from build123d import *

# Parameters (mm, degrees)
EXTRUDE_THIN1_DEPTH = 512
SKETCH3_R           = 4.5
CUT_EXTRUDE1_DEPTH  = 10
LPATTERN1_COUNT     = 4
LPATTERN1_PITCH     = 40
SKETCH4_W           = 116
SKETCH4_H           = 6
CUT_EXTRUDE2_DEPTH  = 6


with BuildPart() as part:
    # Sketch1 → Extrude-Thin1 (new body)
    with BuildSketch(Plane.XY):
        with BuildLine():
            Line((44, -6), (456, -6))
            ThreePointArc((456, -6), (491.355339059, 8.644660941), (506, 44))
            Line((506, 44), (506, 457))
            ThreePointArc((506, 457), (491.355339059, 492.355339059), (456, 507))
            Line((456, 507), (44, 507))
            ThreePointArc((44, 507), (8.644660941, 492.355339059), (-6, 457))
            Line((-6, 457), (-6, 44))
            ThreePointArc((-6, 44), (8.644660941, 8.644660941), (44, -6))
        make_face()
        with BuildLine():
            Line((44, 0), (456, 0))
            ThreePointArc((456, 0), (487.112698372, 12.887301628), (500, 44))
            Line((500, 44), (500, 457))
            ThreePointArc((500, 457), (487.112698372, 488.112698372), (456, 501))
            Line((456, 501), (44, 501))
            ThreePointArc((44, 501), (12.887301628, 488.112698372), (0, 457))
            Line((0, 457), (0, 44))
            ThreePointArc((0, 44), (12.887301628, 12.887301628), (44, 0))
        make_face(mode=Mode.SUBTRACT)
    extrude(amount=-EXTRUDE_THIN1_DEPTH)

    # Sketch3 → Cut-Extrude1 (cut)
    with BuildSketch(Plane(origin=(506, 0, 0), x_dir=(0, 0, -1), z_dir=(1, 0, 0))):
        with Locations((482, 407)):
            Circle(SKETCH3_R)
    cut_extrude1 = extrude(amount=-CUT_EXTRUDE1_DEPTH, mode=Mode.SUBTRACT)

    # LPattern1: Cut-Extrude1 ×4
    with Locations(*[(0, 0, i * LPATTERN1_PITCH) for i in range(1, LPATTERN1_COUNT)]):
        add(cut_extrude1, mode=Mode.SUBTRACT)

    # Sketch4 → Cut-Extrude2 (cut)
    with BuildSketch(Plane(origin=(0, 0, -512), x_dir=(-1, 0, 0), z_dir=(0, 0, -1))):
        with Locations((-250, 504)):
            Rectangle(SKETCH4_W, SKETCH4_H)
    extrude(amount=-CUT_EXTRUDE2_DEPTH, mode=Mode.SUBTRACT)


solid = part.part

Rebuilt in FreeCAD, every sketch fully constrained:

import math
import FreeCAD as App
import Part
import Sketcher

doc = App.newDocument("Part")
body = doc.addObject("PartDesign::Body", "Body")

sketch1 = body.newObject("Sketcher::SketchObject", "Sketch")
sketch1.AttachmentSupport = (doc.getObject("XY_Plane"), [""])
sketch1.MapMode = "FlatFace"
sketch1.addGeometry([
    Part.LineSegment(App.Vector(44, -6, 0), App.Vector(456, -6, 0)),
    Part.ArcOfCircle(Part.Circle(App.Vector(456, 44, 0), App.Vector(0, 0, 1), 50), math.radians(-90), math.radians(0)),
    Part.LineSegment(App.Vector(506, 44, 0), App.Vector(506, 457, 0)),
    Part.ArcOfCircle(Part.Circle(App.Vector(456, 457, 0), App.Vector(0, 0, 1), 50), math.radians(0), math.radians(90)),
    Part.LineSegment(App.Vector(456, 507, 0), App.Vector(44, 507, 0)),
    Part.ArcOfCircle(Part.Circle(App.Vector(44, 457, 0), App.Vector(0, 0, 1), 50), math.radians(90), math.radians(180)),
    Part.LineSegment(App.Vector(-6, 457, 0), App.Vector(-6, 44, 0)),
    Part.ArcOfCircle(Part.Circle(App.Vector(44, 44, 0), App.Vector(0, 0, 1), 50), math.radians(-180), math.radians(-90)),
    Part.LineSegment(App.Vector(456, 0, 0), App.Vector(44, 0, 0)),
    Part.ArcOfCircle(Part.Circle(App.Vector(44, 44, 0), App.Vector(0, 0, 1), 44), math.radians(-180), math.radians(-90)),
    Part.LineSegment(App.Vector(0, 44, 0), App.Vector(0, 457, 0)),
    Part.ArcOfCircle(Part.Circle(App.Vector(44, 457, 0), App.Vector(0, 0, 1), 44), math.radians(90), math.radians(180)),
    Part.LineSegment(App.Vector(44, 501, 0), App.Vector(456, 501, 0)),
    Part.ArcOfCircle(Part.Circle(App.Vector(456, 457, 0), App.Vector(0, 0, 1), 44), math.radians(0), math.radians(90)),
    Part.LineSegment(App.Vector(500, 457, 0), App.Vector(500, 44, 0)),
    Part.ArcOfCircle(Part.Circle(App.Vector(456, 44, 0), App.Vector(0, 0, 1), 44), math.radians(-90), math.radians(0)),
], False)
sketch1.addConstraint([
    Sketcher.Constraint("Tangent", 0, 2, 1, 1),
    Sketcher.Constraint("Tangent", 1, 2, 2, 1),
    Sketcher.Constraint("Tangent", 2, 2, 3, 1),
    Sketcher.Constraint("Tangent", 3, 2, 4, 1),
    Sketcher.Constraint("Tangent", 4, 2, 5, 1),
    Sketcher.Constraint("Tangent", 5, 2, 6, 1),
    Sketcher.Constraint("Tangent", 6, 2, 7, 1),
    Sketcher.Constraint("Tangent", 7, 2, 0, 1),
    Sketcher.Constraint("Tangent", 8, 2, 9, 2),
    Sketcher.Constraint("Tangent", 9, 1, 10, 1),
    Sketcher.Constraint("Tangent", 10, 2, 11, 2),
    Sketcher.Constraint("Tangent", 11, 1, 12, 1),
    Sketcher.Constraint("Tangent", 12, 2, 13, 2),
    Sketcher.Constraint("Tangent", 13, 1, 14, 1),
    Sketcher.Constraint("Tangent", 14, 2, 15, 2),
    Sketcher.Constraint("Tangent", 15, 1, 8, 1),
    Sketcher.Constraint("Horizontal", 0),
    Sketcher.Constraint("Vertical", 2),
    Sketcher.Constraint("Horizontal", 4),
    Sketcher.Constraint("Vertical", 6),
    Sketcher.Constraint("Horizontal", 8),
    Sketcher.Constraint("Vertical", 10),
    Sketcher.Constraint("Horizontal", 12),
    Sketcher.Constraint("Vertical", 14),
    Sketcher.Constraint("Coincident", 9, 3, 7, 3),
    Sketcher.Constraint("Coincident", 11, 3, 5, 3),
    Sketcher.Constraint("Coincident", 13, 3, 3, 3),
    Sketcher.Constraint("Equal", 1, 3),
    Sketcher.Constraint("Equal", 3, 5),
    Sketcher.Constraint("Equal", 5, 7),
    Sketcher.Constraint("Equal", 13, 15),
    Sketcher.Constraint("PointOnObject", 8, 2, -1),
    Sketcher.Constraint("PointOnObject", 9, 1, -2),
    Sketcher.Constraint("Radius", 1, 50.0),
    Sketcher.Constraint("Radius", 9, 44.0),
    Sketcher.Constraint("DistanceX", 0, 1, 0, 2, 412.0),
    Sketcher.Constraint("DistanceY", 2, 1, 2, 2, 413.0),
])
pad1 = body.newObject("PartDesign::Pad", "Pad")
pad1.Profile = sketch1
pad1.Length = 512
pad1.Reversed = True

sketch2 = body.newObject("Sketcher::SketchObject", "Sketch001")
sketch2.AttachmentSupport = (doc.getObject("YZ_Plane"), [""])
sketch2.MapMode = "FlatFace"
sketch2.AttachmentOffset = App.Placement(App.Vector(0, 0, 506), App.Rotation())
sketch2.addGeometry(Part.Circle(App.Vector(407, -482, 0), App.Vector(0, 0, 1), 4.5), False)
sketch2.addConstraint([
    Sketcher.Constraint("Diameter", 0, 9.0),
    Sketcher.Constraint("DistanceX", -1, 1, 0, 3, 407.0),
    Sketcher.Constraint("DistanceY", 0, 3, -1, 1, 482.0),
])
pocket1 = body.newObject("PartDesign::Pocket", "Pocket")
pocket1.Profile = sketch2
pocket1.Length = 10
doc.recompute()

linearpattern = body.newObject("PartDesign::LinearPattern", "LinearPattern")
linearpattern.Originals = [pocket1]
linearpattern.Direction = (doc.getObject("Z_Axis"), [""])
linearpattern.Mode = "offset"
linearpattern.Offset = 40
linearpattern.Occurrences = 4
body.Tip = linearpattern

sketch3 = body.newObject("Sketcher::SketchObject", "Sketch002")
sketch3.AttachmentSupport = (doc.getObject("XY_Plane"), [""])
sketch3.MapMode = "FlatFace"
sketch3.AttachmentOffset = App.Placement(App.Vector(0, 0, -512), App.Rotation())
sketch3.addGeometry([
    Part.LineSegment(App.Vector(308, 507, 0), App.Vector(308, 501, 0)),
    Part.LineSegment(App.Vector(308, 501, 0), App.Vector(192, 501, 0)),
    Part.LineSegment(App.Vector(192, 501, 0), App.Vector(192, 507, 0)),
    Part.LineSegment(App.Vector(192, 507, 0), App.Vector(308, 507, 0)),
], False)
sketch3.addConstraint([
    Sketcher.Constraint("Coincident", 0, 2, 1, 1),
    Sketcher.Constraint("Coincident", 1, 2, 2, 1),
    Sketcher.Constraint("Coincident", 2, 2, 3, 1),
    Sketcher.Constraint("Coincident", 3, 2, 0, 1),
    Sketcher.Constraint("Vertical", 0),
    Sketcher.Constraint("Horizontal", 1),
    Sketcher.Constraint("Vertical", 2),
    Sketcher.Constraint("Horizontal", 3),
    Sketcher.Constraint("DistanceX", 1, 2, 1, 1, 116.0),
    Sketcher.Constraint("DistanceY", 0, 2, 0, 1, 6.0),
    Sketcher.Constraint("DistanceX", -1, 1, 0, 2, 308.0),
    Sketcher.Constraint("DistanceY", -1, 1, 0, 2, 501.0),
])
pocket2 = body.newObject("PartDesign::Pocket", "Pocket001")
pocket2.Profile = sketch3
pocket2.Length = 6
pocket2.Reversed = True

doc.recompute()
